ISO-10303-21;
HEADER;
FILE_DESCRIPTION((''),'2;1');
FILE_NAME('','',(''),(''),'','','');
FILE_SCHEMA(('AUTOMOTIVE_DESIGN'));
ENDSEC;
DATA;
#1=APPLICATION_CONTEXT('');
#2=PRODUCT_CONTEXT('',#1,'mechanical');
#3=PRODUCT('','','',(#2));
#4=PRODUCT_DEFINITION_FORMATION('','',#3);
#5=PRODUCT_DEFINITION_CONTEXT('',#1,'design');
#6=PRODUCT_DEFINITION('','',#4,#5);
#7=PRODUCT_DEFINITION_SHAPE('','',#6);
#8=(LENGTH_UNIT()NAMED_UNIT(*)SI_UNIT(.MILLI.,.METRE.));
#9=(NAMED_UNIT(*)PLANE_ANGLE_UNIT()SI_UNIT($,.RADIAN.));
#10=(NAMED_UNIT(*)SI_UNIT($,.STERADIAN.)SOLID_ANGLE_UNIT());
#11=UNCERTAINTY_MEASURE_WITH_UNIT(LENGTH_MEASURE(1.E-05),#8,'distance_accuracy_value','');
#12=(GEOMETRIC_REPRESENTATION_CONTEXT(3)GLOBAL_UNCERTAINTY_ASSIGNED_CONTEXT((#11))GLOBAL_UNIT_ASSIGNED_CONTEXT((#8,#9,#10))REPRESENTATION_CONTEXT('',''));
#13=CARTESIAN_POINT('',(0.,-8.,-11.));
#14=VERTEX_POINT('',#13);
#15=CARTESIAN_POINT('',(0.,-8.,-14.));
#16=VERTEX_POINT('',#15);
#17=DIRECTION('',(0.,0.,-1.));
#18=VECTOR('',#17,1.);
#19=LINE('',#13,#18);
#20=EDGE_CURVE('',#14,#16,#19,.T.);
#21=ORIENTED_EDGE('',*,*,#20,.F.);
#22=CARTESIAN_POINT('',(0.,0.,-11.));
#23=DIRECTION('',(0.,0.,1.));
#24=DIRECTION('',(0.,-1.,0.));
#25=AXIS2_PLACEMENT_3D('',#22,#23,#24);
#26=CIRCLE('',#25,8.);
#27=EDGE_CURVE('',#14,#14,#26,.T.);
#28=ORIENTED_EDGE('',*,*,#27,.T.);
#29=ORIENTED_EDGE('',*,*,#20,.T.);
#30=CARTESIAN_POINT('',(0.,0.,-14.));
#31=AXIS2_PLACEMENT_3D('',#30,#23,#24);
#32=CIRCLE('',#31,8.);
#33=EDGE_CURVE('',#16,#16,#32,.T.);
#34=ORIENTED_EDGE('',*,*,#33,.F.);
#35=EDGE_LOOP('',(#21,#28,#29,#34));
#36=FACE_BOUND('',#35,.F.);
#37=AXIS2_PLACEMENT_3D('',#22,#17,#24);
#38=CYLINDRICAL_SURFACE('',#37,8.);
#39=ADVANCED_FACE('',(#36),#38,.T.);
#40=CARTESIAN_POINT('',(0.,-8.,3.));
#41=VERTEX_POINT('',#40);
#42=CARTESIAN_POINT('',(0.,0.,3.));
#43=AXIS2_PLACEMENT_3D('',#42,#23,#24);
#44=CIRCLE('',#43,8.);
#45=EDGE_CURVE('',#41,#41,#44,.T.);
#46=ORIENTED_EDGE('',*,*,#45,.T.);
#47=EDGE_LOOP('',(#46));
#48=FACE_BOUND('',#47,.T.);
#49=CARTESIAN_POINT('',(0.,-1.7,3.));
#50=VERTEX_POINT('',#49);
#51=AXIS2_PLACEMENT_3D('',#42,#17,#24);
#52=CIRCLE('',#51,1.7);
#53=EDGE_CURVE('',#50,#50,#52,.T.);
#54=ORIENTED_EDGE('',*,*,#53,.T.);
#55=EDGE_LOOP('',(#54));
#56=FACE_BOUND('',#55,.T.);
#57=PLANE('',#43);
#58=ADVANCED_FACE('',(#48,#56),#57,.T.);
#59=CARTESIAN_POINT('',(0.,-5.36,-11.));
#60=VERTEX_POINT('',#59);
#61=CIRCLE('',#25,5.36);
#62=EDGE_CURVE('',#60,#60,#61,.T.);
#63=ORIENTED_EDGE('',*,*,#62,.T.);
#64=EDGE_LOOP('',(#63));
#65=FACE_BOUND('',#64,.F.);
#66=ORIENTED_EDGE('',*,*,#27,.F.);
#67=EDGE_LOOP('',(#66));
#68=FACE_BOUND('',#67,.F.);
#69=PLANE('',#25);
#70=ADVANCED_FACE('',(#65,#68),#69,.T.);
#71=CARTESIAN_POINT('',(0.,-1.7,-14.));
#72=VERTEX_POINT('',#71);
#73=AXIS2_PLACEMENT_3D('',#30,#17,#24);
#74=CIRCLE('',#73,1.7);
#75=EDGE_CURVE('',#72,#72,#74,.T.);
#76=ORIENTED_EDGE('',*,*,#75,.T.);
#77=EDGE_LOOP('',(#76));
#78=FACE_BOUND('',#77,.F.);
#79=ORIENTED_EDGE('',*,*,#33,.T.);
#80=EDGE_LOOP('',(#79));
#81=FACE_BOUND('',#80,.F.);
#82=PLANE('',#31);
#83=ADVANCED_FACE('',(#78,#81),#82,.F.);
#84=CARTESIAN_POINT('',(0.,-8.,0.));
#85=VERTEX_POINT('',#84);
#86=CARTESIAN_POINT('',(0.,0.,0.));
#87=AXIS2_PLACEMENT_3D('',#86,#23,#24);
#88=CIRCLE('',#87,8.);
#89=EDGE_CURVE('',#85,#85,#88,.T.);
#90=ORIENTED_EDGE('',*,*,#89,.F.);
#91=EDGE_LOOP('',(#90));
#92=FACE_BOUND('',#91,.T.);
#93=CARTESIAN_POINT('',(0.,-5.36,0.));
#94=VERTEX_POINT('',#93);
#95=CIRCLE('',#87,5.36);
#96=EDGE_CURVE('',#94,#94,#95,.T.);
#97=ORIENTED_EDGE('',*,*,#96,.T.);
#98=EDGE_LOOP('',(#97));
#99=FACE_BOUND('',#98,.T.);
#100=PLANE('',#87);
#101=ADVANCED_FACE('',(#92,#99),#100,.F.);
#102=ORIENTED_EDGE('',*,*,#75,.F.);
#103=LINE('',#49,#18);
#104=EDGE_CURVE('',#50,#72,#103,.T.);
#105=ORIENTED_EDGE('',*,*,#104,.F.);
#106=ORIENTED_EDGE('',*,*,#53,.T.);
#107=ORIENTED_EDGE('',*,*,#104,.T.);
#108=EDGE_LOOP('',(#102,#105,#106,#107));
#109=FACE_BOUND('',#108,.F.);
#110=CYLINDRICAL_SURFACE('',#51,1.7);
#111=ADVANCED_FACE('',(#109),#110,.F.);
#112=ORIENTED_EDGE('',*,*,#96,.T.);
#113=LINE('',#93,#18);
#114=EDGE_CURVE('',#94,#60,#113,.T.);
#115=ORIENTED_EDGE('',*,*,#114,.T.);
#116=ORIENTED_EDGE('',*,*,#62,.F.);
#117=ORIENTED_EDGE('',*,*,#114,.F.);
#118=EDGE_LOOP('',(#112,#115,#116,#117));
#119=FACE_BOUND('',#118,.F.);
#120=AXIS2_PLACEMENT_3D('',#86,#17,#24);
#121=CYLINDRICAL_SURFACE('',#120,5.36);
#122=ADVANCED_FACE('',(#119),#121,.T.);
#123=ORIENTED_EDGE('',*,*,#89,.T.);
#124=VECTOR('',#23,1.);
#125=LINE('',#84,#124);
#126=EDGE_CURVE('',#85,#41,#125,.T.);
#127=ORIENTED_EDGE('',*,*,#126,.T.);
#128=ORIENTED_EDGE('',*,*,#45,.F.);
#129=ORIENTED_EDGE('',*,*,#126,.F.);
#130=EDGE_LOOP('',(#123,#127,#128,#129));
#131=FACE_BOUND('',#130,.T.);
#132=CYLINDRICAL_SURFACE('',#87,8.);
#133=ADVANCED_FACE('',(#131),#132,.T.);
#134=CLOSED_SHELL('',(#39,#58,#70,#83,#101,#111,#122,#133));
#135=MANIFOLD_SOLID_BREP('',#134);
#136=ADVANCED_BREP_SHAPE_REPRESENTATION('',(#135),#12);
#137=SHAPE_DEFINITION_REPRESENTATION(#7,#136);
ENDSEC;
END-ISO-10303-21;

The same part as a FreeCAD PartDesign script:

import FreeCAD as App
import Part
import Sketcher

doc = App.newDocument("Part")
body = doc.addObject("PartDesign::Body", "Body")

# Sketch on YZ plane
sketch1 = body.newObject("Sketcher::SketchObject", "Sketch")
sketch1.AttachmentSupport = (doc.getObject("YZ_Plane"), [""])
sketch1.MapMode = "FlatFace"
sketch1.addGeometry([
    Part.LineSegment(App.Vector(0, 3, 0), App.Vector(-8, 3, 0)),  # 0
    Part.LineSegment(App.Vector(-8, 3, 0), App.Vector(-8, 0, 0)),  # 1
    Part.LineSegment(App.Vector(-8, 0, 0), App.Vector(-5.36, 0, 0)),  # 2
    Part.LineSegment(App.Vector(-5.36, 0, 0), App.Vector(-5.36, -11, 0)),  # 3
    Part.LineSegment(App.Vector(-5.36, -11, 0), App.Vector(-8, -11, 0)),  # 4
    Part.LineSegment(App.Vector(-8, -11, 0), App.Vector(-8, -14, 0)),  # 5
    Part.LineSegment(App.Vector(-8, -14, 0), App.Vector(0, -14, 0)),  # 6
    Part.LineSegment(App.Vector(0, -14, 0), App.Vector(0, 3, 0)),  # 7
], False)
sketch1.addConstraint([
    Sketcher.Constraint("Coincident", 0, 2, 1, 1),
    Sketcher.Constraint("Coincident", 1, 2, 2, 1),
    Sketcher.Constraint("Coincident", 2, 2, 3, 1),
    Sketcher.Constraint("Coincident", 3, 2, 4, 1),
    Sketcher.Constraint("Coincident", 4, 2, 5, 1),
    Sketcher.Constraint("Coincident", 5, 2, 6, 1),
    Sketcher.Constraint("Coincident", 6, 2, 7, 1),
    Sketcher.Constraint("Coincident", 7, 2, 0, 1),
    Sketcher.Constraint("Horizontal", 0),
    Sketcher.Constraint("Vertical", 1),
    Sketcher.Constraint("Horizontal", 2),
    Sketcher.Constraint("Vertical", 3),
    Sketcher.Constraint("Horizontal", 4),
    Sketcher.Constraint("Vertical", 5),
    Sketcher.Constraint("Horizontal", 6),
    Sketcher.Constraint("Vertical", 7),
    Sketcher.Constraint("PointOnObject", 1, 2, -1),
    Sketcher.Constraint("PointOnObject", 6, 2, -2),
    Sketcher.Constraint("Vertical", 1, 2, 4, 2),
    Sketcher.Constraint("Equal", 1, 5),
    Sketcher.Constraint("DistanceX", 0, 2, 0, 1, 8.0),
    Sketcher.Constraint("DistanceY", 1, 2, 1, 1, 3.0),
    Sketcher.Constraint("DistanceY", 3, 2, 3, 1, 11.0),
    Sketcher.Constraint("DistanceX", 2, 2, -1, 1, 5.36),
])
revolution = body.newObject("PartDesign::Revolution", "Revolution")
revolution.Profile = sketch1
revolution.ReferenceAxis = (sketch1, ["V_Axis"])
revolution.Angle = 360

# Sketch on XY plane
sketch2 = body.newObject("Sketcher::SketchObject", "Sketch001")
sketch2.AttachmentSupport = (doc.getObject("XY_Plane"), [""])
sketch2.MapMode = "FlatFace"
sketch2.AttachmentOffset = App.Placement(App.Vector(0, 0, 3), App.Rotation())
sketch2.addGeometry(Part.Circle(App.Vector(0, 0, 0), App.Vector(0, 0, 1), 1.7), False)
sketch2.addConstraint([
    Sketcher.Constraint("Coincident", 0, 3, -1, 1),
    Sketcher.Constraint("Diameter", 0, 3.4),
])
doc.recompute()
hole = body.newObject("PartDesign::Hole", "Hole")
hole.Profile = sketch2
hole.ThreadType = "None"
hole.Diameter = 3.4
hole.DepthType = "ThroughAll"

doc.recompute()
